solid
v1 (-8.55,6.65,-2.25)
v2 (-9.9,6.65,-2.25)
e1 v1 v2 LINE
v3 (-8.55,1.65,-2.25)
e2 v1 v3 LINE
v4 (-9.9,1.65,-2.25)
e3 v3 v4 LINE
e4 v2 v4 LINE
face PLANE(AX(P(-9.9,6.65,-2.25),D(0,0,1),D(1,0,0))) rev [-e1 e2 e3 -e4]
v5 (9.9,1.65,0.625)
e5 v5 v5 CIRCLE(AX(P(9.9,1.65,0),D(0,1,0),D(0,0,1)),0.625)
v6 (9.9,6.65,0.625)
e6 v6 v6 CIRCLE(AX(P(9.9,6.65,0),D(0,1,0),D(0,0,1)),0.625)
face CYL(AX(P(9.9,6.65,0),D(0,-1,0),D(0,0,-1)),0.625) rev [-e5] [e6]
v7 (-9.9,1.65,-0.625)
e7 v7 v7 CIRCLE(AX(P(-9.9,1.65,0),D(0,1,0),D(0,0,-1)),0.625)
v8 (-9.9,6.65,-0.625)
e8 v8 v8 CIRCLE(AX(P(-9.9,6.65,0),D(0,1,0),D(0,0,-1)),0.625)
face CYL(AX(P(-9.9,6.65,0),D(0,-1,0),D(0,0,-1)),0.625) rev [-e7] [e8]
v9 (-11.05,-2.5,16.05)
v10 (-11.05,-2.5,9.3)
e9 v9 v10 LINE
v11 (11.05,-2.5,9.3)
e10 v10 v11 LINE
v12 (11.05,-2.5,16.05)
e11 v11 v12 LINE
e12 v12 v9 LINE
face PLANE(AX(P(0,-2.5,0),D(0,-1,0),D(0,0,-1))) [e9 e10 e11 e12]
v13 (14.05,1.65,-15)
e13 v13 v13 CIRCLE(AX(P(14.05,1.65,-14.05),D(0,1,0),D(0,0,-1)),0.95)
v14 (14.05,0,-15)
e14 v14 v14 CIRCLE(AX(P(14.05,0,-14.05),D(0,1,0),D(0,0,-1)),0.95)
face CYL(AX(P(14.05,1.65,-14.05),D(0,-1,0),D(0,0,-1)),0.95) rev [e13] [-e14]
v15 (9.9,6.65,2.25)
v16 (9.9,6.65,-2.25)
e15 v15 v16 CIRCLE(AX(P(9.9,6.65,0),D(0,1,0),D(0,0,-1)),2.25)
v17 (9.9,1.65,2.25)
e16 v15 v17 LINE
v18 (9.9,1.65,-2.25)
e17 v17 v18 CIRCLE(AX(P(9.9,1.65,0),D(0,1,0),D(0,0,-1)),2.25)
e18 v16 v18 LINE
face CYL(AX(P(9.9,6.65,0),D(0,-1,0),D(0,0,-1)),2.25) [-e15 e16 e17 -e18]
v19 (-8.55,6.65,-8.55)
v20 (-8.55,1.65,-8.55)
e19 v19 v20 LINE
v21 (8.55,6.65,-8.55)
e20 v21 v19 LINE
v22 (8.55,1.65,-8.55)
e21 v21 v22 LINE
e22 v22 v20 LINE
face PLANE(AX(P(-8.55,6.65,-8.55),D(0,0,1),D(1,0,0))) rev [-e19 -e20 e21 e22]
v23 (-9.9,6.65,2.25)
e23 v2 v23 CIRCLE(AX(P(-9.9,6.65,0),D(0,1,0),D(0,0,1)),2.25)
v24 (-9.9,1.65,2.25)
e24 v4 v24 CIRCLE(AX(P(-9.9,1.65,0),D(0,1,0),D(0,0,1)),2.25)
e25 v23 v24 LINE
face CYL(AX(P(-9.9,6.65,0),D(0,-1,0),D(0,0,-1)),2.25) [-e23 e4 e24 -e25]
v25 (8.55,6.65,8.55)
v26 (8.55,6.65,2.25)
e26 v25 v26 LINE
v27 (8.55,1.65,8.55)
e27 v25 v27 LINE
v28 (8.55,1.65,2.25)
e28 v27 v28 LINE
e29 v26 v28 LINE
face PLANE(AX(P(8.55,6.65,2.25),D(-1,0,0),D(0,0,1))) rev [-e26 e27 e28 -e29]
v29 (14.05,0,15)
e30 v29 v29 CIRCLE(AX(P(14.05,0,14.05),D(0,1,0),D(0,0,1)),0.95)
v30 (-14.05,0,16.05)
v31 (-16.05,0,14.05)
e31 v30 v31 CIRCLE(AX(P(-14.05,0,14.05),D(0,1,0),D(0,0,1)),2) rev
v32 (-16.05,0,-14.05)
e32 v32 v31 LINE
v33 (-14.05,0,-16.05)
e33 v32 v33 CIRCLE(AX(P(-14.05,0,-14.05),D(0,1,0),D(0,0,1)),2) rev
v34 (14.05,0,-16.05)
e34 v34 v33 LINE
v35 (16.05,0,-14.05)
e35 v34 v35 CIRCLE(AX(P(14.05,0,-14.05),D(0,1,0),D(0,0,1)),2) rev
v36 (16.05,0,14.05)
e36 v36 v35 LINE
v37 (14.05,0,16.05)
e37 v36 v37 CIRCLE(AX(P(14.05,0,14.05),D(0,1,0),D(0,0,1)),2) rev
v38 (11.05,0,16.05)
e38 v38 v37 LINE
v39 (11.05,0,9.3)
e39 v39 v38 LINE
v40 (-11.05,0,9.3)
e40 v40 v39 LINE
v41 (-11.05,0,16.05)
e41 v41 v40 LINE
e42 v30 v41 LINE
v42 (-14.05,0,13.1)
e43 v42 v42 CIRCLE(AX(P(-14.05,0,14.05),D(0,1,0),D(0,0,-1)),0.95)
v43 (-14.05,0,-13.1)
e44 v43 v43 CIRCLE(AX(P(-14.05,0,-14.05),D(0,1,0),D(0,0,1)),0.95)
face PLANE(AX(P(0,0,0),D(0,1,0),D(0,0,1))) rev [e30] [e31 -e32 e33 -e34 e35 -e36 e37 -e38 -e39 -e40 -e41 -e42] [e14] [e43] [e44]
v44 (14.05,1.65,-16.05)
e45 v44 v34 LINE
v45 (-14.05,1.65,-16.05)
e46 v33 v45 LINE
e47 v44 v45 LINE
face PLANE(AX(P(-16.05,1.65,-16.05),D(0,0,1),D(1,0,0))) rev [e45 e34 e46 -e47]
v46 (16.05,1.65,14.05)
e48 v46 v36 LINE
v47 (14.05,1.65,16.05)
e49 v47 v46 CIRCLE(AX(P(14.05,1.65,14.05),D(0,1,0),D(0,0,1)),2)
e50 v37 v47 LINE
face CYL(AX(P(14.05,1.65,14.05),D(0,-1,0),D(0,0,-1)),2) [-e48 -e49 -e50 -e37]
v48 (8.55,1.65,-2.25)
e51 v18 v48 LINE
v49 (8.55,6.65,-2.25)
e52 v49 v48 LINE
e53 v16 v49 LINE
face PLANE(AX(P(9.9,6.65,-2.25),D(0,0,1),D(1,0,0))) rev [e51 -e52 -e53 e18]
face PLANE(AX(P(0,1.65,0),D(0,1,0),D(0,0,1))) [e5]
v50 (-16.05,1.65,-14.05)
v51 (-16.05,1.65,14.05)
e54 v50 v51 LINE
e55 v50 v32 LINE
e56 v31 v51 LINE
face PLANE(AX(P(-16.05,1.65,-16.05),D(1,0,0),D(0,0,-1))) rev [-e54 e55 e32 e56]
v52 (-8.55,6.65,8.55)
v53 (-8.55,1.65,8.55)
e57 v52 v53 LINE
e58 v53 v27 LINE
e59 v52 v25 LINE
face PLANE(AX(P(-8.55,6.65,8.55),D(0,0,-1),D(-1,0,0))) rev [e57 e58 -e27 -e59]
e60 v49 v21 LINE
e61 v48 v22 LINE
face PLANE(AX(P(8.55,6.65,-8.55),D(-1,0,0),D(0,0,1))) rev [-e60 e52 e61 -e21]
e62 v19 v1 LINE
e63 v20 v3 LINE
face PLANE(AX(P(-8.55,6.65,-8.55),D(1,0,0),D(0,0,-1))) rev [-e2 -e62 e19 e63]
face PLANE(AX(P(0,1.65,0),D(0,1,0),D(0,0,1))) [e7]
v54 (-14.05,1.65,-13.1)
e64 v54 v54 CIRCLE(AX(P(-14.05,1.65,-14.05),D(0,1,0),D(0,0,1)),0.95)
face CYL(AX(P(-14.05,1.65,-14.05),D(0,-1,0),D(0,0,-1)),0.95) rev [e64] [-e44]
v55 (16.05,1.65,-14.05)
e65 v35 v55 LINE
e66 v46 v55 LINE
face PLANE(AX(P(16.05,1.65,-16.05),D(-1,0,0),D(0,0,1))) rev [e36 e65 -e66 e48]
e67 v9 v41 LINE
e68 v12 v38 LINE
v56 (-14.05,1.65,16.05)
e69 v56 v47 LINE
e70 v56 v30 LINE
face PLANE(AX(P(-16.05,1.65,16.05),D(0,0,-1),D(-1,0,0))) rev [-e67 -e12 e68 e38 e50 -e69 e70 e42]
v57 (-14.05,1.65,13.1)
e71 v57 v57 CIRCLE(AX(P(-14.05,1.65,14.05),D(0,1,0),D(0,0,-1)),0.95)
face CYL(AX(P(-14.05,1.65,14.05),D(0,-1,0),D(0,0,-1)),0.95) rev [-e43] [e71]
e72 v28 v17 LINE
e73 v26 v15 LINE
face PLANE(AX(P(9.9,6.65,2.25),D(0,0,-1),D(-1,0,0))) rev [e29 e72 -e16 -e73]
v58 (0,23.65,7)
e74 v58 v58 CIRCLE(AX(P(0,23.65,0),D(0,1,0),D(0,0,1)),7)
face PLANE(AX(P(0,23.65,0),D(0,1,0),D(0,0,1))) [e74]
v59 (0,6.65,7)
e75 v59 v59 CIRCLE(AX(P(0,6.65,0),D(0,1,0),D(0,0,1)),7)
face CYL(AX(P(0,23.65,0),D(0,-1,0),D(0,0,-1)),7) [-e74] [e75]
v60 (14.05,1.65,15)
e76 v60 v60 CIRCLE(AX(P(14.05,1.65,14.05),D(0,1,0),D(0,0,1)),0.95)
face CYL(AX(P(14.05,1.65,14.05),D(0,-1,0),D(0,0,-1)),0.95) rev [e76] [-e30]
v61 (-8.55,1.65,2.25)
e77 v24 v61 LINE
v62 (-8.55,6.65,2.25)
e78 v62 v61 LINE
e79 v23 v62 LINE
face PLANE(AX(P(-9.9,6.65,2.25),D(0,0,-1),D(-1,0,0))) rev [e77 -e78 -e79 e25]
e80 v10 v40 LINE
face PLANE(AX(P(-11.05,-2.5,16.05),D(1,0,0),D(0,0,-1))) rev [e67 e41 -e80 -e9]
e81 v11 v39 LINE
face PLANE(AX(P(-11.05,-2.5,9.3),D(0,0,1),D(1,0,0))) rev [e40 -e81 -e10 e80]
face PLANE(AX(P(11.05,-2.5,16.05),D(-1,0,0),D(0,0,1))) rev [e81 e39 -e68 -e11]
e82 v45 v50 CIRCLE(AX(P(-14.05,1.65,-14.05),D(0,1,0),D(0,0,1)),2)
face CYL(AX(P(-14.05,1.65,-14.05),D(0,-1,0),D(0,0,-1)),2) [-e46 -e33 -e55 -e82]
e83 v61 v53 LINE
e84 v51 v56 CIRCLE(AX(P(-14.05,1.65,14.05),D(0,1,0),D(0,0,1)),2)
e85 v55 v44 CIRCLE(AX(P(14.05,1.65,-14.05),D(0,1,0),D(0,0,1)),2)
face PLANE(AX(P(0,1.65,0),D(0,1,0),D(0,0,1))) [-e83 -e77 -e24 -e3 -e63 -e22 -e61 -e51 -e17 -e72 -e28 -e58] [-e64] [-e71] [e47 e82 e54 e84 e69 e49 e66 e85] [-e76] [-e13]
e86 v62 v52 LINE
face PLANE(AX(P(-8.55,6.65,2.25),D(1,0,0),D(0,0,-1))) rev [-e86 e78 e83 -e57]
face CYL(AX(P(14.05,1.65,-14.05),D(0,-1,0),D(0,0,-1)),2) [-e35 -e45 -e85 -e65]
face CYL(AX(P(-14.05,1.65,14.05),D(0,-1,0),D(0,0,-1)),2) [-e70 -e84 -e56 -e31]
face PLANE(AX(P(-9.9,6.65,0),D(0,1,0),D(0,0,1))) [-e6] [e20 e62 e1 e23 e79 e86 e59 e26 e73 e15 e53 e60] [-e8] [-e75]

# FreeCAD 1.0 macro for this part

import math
import FreeCAD as App
import Part
import Sketcher
Q = App.Units.Quantity


def edges_at(feature, points):
    """Names of the edges that pass closest to the given points."""
    edges = feature.Shape.Edges
    near = lambda p: min(range(len(edges)), key=lambda i: edges[i].distToShape(Part.Vertex(*p))[0])
    return sorted({f"Edge{near(p) + 1}" for p in points})


def add_polygon(sketch, points):
    """Adds a closed chain of lines whose ends are joined by coincident constraints."""
    first, n = sketch.GeometryCount, len(points)
    for a, b in zip(points, points[1:] + points[:1]):
        sketch.addGeometry(Part.LineSegment(App.Vector(*a, 0), App.Vector(*b, 0)), False)
    for i in range(n):
        sketch.addConstraint(Sketcher.Constraint("Coincident", first + i, 2, first + (i + 1) % n, 1))

doc = App.newDocument("Part")
params = doc.addObject("Spreadsheet::Sheet", "Params")
for row, (alias, value) in enumerate([
    ("sketch1_diameter", "1.9 mm"),
    ("sketch1_width", "32.1 mm"),
    ("pad1_length", "1.65 mm"),
    ("sketch2_width", "22.1 mm"),
    ("sketch2_height", "6.75 mm"),
    ("pad2_length", "2.5 mm"),
    ("sketch3_diameter", "1.25 mm"),
    ("sketch3_radius", "2.25 mm"),
    ("sketch3_width", "17.1 mm"),
    ("sketch3_height", "6.3 mm"),
    ("sketch3_width2", "1.35 mm"),
    ("pad3_length", "5 mm"),
    ("sketch4_diameter", "14 mm"),
    ("pad4_length", "17 mm"),
    ("fillet_radius", "2 mm"),
], start=1):
    params.set(f"A{row}", alias)
    params.set(f"B{row}", "=" + value)
    params.setAlias(f"B{row}", alias)

body = doc.addObject("PartDesign::Body", "Body")

# Sketch on XZ plane
sketch1 = body.newObject("Sketcher::SketchObject", "Sketch")
sketch1.AttachmentSupport = (doc.getObject("XZ_Plane"), [""])
sketch1.MapMode = "FlatFace"
add_polygon(sketch1, [(-16.1, -16.1), (-16.1, 16.1), (16.1, 16.1), (16.1, -16.1)])  # lines 0-3
sketch1.addGeometry(Part.Circle(App.Vector(-14.1, 14.1, 0), App.Vector(0, 0, 1), 0.9), False)  # 4
sketch1.addGeometry(Part.Circle(App.Vector(14.1, 14.1, 0), App.Vector(0, 0, 1), 0.9), False)  # 5
sketch1.addGeometry(Part.Circle(App.Vector(-14.1, -14.1, 0), App.Vector(0, 0, 1), 0.9), False)  # 6
sketch1.addGeometry(Part.Circle(App.Vector(14.1, -14.1, 0), App.Vector(0, 0, 1), 0.9), False)  # 7
sketch1.addConstraint([
    Sketcher.Constraint("Vertical", 0),
    Sketcher.Constraint("Horizontal", 1),
    Sketcher.Constraint("Vertical", 2),
    Sketcher.Constraint("Horizontal", 3),
    Sketcher.Constraint("Equal", 4, 5),
    Sketcher.Constraint("Equal", 5, 6),
    Sketcher.Constraint("Equal", 6, 7),
    Sketcher.Constraint("Symmetric", 5, 3, 6, 3, -1, 1),
    Sketcher.Constraint("Symmetric", 4, 3, 7, 3, -1, 1),
    Sketcher.Constraint("Symmetric", 0, 2, 2, 2, -1, 1),
    Sketcher.Constraint("Symmetric", 4, 3, 5, 3, -2),
    Sketcher.Constraint("Equal", 3, 0),
    Sketcher.Constraint("Diameter", 4, Q("1.9 mm")),
    Sketcher.Constraint("DistanceX", 1, 1, 1, 2, Q("32.1 mm")),
    Sketcher.Constraint("DistanceX", 0, 2, 4, 3, Q("2 mm")),
    Sketcher.Constraint("DistanceY", 4, 3, 0, 2, Q("2 mm")),
])
sketch1.setExpression("Constraints[16]", "Params.sketch1_diameter")
sketch1.setExpression("Constraints[17]", "Params.sketch1_width")
pad1 = body.newObject("PartDesign::Pad", "Pad")
pad1.Profile = sketch1
pad1.setExpression("Length", "Params.pad1_length")
pad1.Reversed = True

# Sketch on XZ plane
sketch2 = body.newObject("Sketcher::SketchObject", "Sketch001")
sketch2.AttachmentSupport = (doc.getObject("XZ_Plane"), [""])
sketch2.MapMode = "FlatFace"
add_polygon(sketch2, [(-11, 16), (-11, 9), (11, 9), (11, 16)])  # lines 0-3
sketch2.addConstraint([
    Sketcher.Constraint("Vertical", 0),
    Sketcher.Constraint("Horizontal", 1),
    Sketcher.Constraint("Vertical", 2),
    Sketcher.Constraint("Horizontal", 3),
    Sketcher.Constraint("DistanceX", 1, 1, 1, 2, Q("22.1 mm")),
    Sketcher.Constraint("DistanceY", 0, 2, 0, 1, Q("6.75 mm")),
    Sketcher.Constraint("DistanceY", -1, 1, 0, 2, Q("9.3 mm")),
    Sketcher.Constraint("DistanceX", 0, 2, -1, 1, Q("11.05 mm")),
])
sketch2.setExpression("Constraints[8]", "Params.sketch2_width")
sketch2.setExpression("Constraints[9]", "Params.sketch2_height")
pad2 = body.newObject("PartDesign::Pad", "Pad001")
pad2.Profile = sketch2
pad2.setExpression("Length", "Params.pad2_length")

# Sketch on XZ plane
sketch3 = body.newObject("Sketcher::SketchObject", "Sketch002")
sketch3.AttachmentSupport = (doc.getObject("XZ_Plane"), [""])
sketch3.MapMode = "FlatFace"
sketch3.AttachmentOffset = App.Placement(App.Vector(0, 0, -1.65), App.Rotation())
sketch3.addGeometry([
    Part.LineSegment(App.Vector(9.9, -2.2, 0), App.Vector(8.6, -2.2, 0)),  # 0
    Part.LineSegment(App.Vector(8.6, -2.2, 0), App.Vector(8.6, -8.6, 0)),  # 1
    Part.LineSegment(App.Vector(8.6, -8.6, 0), App.Vector(-8.6, -8.6, 0)),  # 2
    Part.LineSegment(App.Vector(-8.6, -8.6, 0), App.Vector(-8.6, -2.2, 0)),  # 3
    Part.LineSegment(App.Vector(-8.6, -2.2, 0), App.Vector(-9.9, -2.2, 0)),  # 4
    Part.ArcOfCircle(Part.Circle(App.Vector(-9.9, 0, 0), App.Vector(0, 0, 1), 2.2), math.radians(90), math.radians(270)),  # 5
    Part.LineSegment(App.Vector(-9.9, 2.2, 0), App.Vector(-8.6, 2.2, 0)),  # 6
    Part.LineSegment(App.Vector(-8.6, 2.2, 0), App.Vector(-8.6, 8.6, 0)),  # 7
    Part.LineSegment(App.Vector(-8.6, 8.6, 0), App.Vector(8.6, 8.6, 0)),  # 8
    Part.LineSegment(App.Vector(8.6, 8.6, 0), App.Vector(8.6, 2.2, 0)),  # 9
    Part.LineSegment(App.Vector(8.6, 2.2, 0), App.Vector(9.9, 2.2, 0)),  # 10
    Part.ArcOfCircle(Part.Circle(App.Vector(9.9, 0, 0), App.Vector(0, 0, 1), 2.2), math.radians(-90), math.radians(90)),  # 11
    Part.Circle(App.Vector(-9.9, 0, 0), App.Vector(0, 0, 1), 0.6),  # 12
    Part.Circle(App.Vector(9.9, 0, 0), App.Vector(0, 0, 1), 0.6),  # 13
], False)
sketch3.addConstraint([
    Sketcher.Constraint("Coincident", 0, 2, 1, 1),
    Sketcher.Constraint("Coincident", 1, 2, 2, 1),
    Sketcher.Constraint("Coincident", 2, 2, 3, 1),
    Sketcher.Constraint("Coincident", 3, 2, 4, 1),
    Sketcher.Constraint("Tangent", 4, 2, 5, 2),
    Sketcher.Constraint("Tangent", 5, 1, 6, 1),
    Sketcher.Constraint("Coincident", 6, 2, 7, 1),
    Sketcher.Constraint("Coincident", 7, 2, 8, 1),
    Sketcher.Constraint("Coincident", 8, 2, 9, 1),
    Sketcher.Constraint("Coincident", 9, 2, 10, 1),
    Sketcher.Constraint("Tangent", 10, 2, 11, 2),
    Sketcher.Constraint("Tangent", 11, 1, 0, 1),
    Sketcher.Constraint("Horizontal", 0),
    Sketcher.Constraint("Vertical", 1),
    Sketcher.Constraint("Horizontal", 2),
    Sketcher.Constraint("Vertical", 3),
    Sketcher.Constraint("Horizontal", 4),
    Sketcher.Constraint("Horizontal", 6),
    Sketcher.Constraint("Vertical", 7),
    Sketcher.Constraint("Horizontal", 8),
    Sketcher.Constraint("Vertical", 9),
    Sketcher.Constraint("Horizontal", 10),
    Sketcher.Constraint("Coincident", 12, 3, 5, 3),
    Sketcher.Constraint("Coincident", 13, 3, 11, 3),
    Sketcher.Constraint("Equal", 5, 11),
    Sketcher.Constraint("Equal", 12, 13),
    Sketcher.Constraint("Symmetric", 5, 3, 11, 3, -1, 1),
    Sketcher.Constraint("Symmetric", 1, 2, 7, 2, -1, 1),
    Sketcher.Constraint("Symmetric", 0, 2, 3, 2, -2),
    Sketcher.Constraint("Vertical", 1, 2, 8, 2),
    Sketcher.Constraint("Diameter", 12, Q("1.25 mm")),
    Sketcher.Constraint("Radius", 5, Q("2.25 mm")),
    Sketcher.Constraint("DistanceX", 2, 2, 2, 1, Q("17.1 mm")),
    Sketcher.Constraint("DistanceY", 1, 2, 1, 1, Q("6.3 mm")),
    Sketcher.Constraint("DistanceX", 0, 2, 0, 1, Q("1.35 mm")),
])
sketch3.setExpression("Constraints[30]", "Params.sketch3_diameter")
sketch3.setExpression("Constraints[31]", "Params.sketch3_radius")
sketch3.setExpression("Constraints[32]", "Params.sketch3_width")
sketch3.setExpression("Constraints[33]", "Params.sketch3_height")
sketch3.setExpression("Constraints[34]", "Params.sketch3_width2")
pad3 = body.newObject("PartDesign::Pad", "Pad002")
pad3.Profile = sketch3
pad3.setExpression("Length", "Params.pad3_length")
pad3.Reversed = True

# Sketch on XZ plane
sketch4 = body.newObject("Sketcher::SketchObject", "Sketch003")
sketch4.AttachmentSupport = (doc.getObject("XZ_Plane"), [""])
sketch4.MapMode = "FlatFace"
sketch4.AttachmentOffset = App.Placement(App.Vector(0, 0, -6.65), App.Rotation())
sketch4.addGeometry(Part.Circle(App.Vector(0, 0, 0), App.Vector(0, 0, 1), 7), False)
sketch4.addConstraint([
    Sketcher.Constraint("Coincident", 0, 3, -1, 1),
    Sketcher.Constraint("Diameter", 0, Q("14 mm")),
])
sketch4.setExpression("Constraints[1]", "Params.sketch4_diameter")
pad4 = body.newObject("PartDesign::Pad", "Pad003")
pad4.Profile = sketch4
pad4.setExpression("Length", "Params.pad4_length")
pad4.Reversed = True
doc.recompute()

fillet = body.newObject("PartDesign::Fillet", "Fillet")
fillet.Base = (pad4, edges_at(pad4, [
    (-16.05, 0.825, -16.05),
    (16.05, 0.825, -16.05),
    (16.05, 0.825, 16.05),
    (-16.05, 0.825, 16.05),
]))
fillet.setExpression("Radius", "Params.fillet_radius")

doc.recompute()
